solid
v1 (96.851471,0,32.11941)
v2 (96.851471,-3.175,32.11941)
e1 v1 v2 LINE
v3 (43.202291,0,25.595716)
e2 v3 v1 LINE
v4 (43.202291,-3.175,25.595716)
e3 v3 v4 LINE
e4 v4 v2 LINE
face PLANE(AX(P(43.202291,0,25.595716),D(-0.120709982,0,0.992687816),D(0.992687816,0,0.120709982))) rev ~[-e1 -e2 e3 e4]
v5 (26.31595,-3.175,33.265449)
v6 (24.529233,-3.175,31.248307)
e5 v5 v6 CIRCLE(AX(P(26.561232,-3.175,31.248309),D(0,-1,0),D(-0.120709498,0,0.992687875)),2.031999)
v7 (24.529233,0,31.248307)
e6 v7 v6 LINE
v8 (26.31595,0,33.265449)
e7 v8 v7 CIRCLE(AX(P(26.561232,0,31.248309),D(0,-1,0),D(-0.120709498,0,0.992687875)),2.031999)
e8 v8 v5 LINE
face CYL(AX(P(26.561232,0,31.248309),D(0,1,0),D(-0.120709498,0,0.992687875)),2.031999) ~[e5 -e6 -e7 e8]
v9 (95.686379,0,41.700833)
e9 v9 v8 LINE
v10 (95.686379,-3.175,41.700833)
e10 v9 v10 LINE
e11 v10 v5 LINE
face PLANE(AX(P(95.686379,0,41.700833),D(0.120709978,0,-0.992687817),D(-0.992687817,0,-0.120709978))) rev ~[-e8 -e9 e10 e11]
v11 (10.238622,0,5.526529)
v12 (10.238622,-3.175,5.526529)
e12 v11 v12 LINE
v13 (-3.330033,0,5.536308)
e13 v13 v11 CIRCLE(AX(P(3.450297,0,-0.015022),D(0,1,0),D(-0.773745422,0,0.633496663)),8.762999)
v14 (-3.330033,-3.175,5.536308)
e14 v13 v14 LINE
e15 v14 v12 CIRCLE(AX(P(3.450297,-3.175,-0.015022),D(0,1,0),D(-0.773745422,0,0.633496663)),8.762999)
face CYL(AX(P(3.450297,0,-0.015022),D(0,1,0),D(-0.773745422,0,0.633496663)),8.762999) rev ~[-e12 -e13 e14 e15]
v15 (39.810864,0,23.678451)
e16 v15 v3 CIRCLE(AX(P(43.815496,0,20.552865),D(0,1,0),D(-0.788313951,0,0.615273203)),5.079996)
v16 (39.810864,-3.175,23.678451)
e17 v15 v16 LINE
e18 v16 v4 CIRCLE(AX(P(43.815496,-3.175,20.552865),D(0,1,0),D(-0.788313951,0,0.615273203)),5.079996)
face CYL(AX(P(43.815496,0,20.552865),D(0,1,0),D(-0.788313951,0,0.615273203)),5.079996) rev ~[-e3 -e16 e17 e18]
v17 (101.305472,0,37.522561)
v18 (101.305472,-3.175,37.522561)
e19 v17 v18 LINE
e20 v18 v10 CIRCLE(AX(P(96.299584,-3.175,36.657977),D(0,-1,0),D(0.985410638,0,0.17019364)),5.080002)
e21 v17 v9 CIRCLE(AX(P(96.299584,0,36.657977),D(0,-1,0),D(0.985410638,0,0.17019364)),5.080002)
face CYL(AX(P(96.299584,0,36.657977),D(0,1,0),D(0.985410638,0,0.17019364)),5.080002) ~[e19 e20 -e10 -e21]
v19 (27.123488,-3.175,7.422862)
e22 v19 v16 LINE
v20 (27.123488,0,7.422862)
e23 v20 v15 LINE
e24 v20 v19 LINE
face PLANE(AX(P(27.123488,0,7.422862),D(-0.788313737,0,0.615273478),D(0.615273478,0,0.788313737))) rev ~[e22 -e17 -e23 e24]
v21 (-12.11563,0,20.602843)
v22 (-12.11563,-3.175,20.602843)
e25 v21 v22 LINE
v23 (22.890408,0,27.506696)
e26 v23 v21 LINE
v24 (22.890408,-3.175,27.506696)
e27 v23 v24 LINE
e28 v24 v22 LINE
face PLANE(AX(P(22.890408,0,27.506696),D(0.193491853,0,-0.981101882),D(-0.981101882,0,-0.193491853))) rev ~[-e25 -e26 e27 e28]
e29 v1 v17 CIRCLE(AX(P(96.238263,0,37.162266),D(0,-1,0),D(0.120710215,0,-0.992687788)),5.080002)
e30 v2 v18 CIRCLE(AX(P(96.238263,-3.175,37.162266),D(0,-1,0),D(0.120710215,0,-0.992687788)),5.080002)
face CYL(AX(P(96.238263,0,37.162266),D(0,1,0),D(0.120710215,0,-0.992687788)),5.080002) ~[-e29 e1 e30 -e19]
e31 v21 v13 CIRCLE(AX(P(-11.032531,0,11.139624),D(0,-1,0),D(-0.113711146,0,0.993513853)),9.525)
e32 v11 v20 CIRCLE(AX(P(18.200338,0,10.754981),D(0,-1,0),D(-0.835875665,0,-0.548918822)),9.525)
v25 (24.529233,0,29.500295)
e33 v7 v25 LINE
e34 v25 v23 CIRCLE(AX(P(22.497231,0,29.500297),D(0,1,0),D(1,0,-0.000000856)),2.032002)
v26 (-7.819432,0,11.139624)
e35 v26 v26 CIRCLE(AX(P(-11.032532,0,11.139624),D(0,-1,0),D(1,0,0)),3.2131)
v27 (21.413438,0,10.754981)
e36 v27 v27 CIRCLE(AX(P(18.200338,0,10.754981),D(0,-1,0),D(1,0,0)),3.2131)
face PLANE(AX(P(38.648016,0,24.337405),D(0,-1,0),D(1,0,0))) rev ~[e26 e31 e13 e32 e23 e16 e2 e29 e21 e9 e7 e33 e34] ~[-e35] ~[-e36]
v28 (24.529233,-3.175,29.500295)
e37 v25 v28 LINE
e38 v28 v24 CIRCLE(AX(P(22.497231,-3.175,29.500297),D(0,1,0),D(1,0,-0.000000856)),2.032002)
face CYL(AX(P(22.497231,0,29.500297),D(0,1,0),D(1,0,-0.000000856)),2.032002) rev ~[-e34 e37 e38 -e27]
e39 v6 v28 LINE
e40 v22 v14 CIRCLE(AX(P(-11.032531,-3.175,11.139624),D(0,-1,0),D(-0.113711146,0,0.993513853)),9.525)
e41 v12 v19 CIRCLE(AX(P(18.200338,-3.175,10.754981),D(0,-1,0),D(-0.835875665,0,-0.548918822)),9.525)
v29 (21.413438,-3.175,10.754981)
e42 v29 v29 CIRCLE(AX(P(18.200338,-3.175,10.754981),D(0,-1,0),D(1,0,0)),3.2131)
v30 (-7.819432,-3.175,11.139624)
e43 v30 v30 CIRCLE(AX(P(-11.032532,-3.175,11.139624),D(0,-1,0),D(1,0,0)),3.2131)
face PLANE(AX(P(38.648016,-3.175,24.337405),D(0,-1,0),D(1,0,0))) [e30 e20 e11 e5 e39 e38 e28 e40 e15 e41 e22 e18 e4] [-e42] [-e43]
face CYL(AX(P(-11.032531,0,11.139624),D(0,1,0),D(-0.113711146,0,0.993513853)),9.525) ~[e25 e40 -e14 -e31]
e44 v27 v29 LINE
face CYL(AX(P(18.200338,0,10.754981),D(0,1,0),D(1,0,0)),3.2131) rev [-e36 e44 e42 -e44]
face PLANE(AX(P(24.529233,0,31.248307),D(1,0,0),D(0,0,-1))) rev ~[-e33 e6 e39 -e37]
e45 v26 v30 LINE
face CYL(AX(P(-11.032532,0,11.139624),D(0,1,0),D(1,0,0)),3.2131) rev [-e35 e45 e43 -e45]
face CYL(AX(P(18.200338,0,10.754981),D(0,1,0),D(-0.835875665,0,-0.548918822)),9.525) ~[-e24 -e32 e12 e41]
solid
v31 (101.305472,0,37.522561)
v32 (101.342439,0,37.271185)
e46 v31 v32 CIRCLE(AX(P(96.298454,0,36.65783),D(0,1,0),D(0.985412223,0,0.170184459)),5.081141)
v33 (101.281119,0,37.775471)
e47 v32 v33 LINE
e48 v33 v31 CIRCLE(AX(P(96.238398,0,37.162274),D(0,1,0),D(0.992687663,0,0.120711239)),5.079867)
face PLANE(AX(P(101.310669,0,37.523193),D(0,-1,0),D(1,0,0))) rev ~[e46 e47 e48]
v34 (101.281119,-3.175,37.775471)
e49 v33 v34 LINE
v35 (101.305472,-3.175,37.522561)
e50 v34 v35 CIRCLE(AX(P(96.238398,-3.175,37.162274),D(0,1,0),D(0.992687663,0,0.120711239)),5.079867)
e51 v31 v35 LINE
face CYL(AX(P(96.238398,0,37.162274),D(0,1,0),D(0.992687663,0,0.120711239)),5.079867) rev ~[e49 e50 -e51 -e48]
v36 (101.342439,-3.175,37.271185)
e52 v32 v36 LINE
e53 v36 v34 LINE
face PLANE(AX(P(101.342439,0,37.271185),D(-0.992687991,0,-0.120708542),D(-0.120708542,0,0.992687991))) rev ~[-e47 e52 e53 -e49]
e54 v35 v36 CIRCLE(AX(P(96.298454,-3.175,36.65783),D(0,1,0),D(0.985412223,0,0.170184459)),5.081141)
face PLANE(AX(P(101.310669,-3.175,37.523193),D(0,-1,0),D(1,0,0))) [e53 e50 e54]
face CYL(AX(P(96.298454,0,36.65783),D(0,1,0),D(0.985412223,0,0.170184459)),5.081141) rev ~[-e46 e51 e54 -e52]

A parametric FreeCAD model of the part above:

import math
import FreeCAD as App
import Part
import Sketcher
from FreeCAD import Vector
Q = App.Units.Quantity

doc = App.newDocument("Part")
body = doc.addObject("PartDesign::Body", "Body")
body.AllowCompound = True

# Sketch on XZ plane
sketch1 = body.newObject("Sketcher::SketchObject", "Sketch")
sketch1.AttachmentSupport = (doc.getObject("XZ_Plane"), [""])
sketch1.MapMode = "FlatFace"
sketch1.addGeometry(Part.LineSegment(Vector(22.890408, 27.506696, 0), Vector(-12.11563, 20.602843, 0)), False)
sketch1.addGeometry(Part.ArcOfCircle(Part.Circle(Vector(-11.032531, 11.139624, 0), Vector(0, 0, 1), 9.525), math.radians(96.529291), math.radians(323.965336)), False)
sketch1.addGeometry(Part.ArcOfCircle(Part.Circle(Vector(3.450297, -0.015022, 0), Vector(0, 0, 1), 8.762999), math.radians(39.225987), math.radians(140.691426)), False)
sketch1.addGeometry(Part.ArcOfCircle(Part.Circle(Vector(18.200338, 10.754981, 0), Vector(0, 0, 1), 9.525), math.radians(-146.707129), math.radians(-20.476841)), False)
sketch1.addGeometry(Part.LineSegment(Vector(27.123488, 7.422862, 0), Vector(39.810864, 23.678451, 0)), False)
sketch1.addGeometry(Part.ArcOfCircle(Part.Circle(Vector(43.815496, 20.552865, 0), Vector(0, 0, 1), 5.079996), math.radians(96.933065), math.radians(142.028226)), False)
sketch1.addGeometry(Part.LineSegment(Vector(43.202291, 25.595716, 0), Vector(96.851471, 32.11941, 0)), False)
sketch1.addGeometry(Part.ArcOfCircle(Part.Circle(Vector(96.238263, 37.162266, 0), Vector(0, 0, 1), 5.080002), math.radians(-83.066907), math.radians(4.067071)), False)
sketch1.addGeometry(Part.ArcOfCircle(Part.Circle(Vector(96.299584, 36.657977, 0), Vector(0, 0, 1), 5.080002), math.radians(9.799078), math.radians(96.933061)), False)
sketch1.addGeometry(Part.LineSegment(Vector(95.686379, 41.700833, 0), Vector(26.31595, 33.265449, 0)), False)
sketch1.addGeometry(Part.ArcOfCircle(Part.Circle(Vector(26.561232, 31.248309, 0), Vector(0, 0, 1), 2.031999), math.radians(96.933051), math.radians(180.000048)), False)
sketch1.addGeometry(Part.LineSegment(Vector(24.529233, 31.248307, 0), Vector(24.529233, 29.500295, 0)), False)
sketch1.addGeometry(Part.ArcOfCircle(Part.Circle(Vector(22.497231, 29.500297, 0), Vector(0, 0, 1), 2.032002), math.radians(-78.843332), math.radians(-0.000049)), False)
sketch1.addGeometry(Part.Circle(Vector(18.200338, 10.754981, 0), Vector(0, 0, 1), 3.2131), False)
sketch1.addGeometry(Part.Circle(Vector(-11.032532, 11.139624, 0), Vector(0, 0, 1), 3.2131), False)
sketch1.addGeometry(Part.ArcOfCircle(Part.Circle(Vector(96.238398, 37.162274, 0), Vector(0, 0, 1), 5.079867), math.radians(4.067089), math.radians(6.933152)), False)
sketch1.addGeometry(Part.ArcOfCircle(Part.Circle(Vector(96.298454, 36.65783, 0), Vector(0, 0, 1), 5.081141), math.radians(6.933202), math.radians(9.798544)), False)
sketch1.addGeometry(Part.LineSegment(Vector(101.342439, 37.271185, 0), Vector(101.281119, 37.775471, 0)), False)
sketch1.addConstraint(Sketcher.Constraint("Coincident", 0, 2, 1, 1))
sketch1.addConstraint(Sketcher.Constraint("Coincident", 1, 2, 2, 2))
sketch1.addConstraint(Sketcher.Constraint("Coincident", 2, 1, 3, 1))
sketch1.addConstraint(Sketcher.Constraint("Coincident", 3, 2, 4, 1))
sketch1.addConstraint(Sketcher.Constraint("Coincident", 4, 2, 5, 2))
sketch1.addConstraint(Sketcher.Constraint("Coincident", 5, 1, 6, 1))
sketch1.addConstraint(Sketcher.Constraint("Coincident", 6, 2, 7, 1))
sketch1.addConstraint(Sketcher.Constraint("Coincident", 7, 2, 8, 1))
sketch1.addConstraint(Sketcher.Constraint("Coincident", 8, 2, 9, 1))
sketch1.addConstraint(Sketcher.Constraint("Coincident", 9, 2, 10, 1))
sketch1.addConstraint(Sketcher.Constraint("Coincident", 10, 2, 11, 1))
sketch1.addConstraint(Sketcher.Constraint("Coincident", 11, 2, 12, 2))
sketch1.addConstraint(Sketcher.Constraint("Coincident", 12, 1, 0, 1))
sketch1.addConstraint(Sketcher.Constraint("Coincident", 15, 1, 16, 2))
sketch1.addConstraint(Sketcher.Constraint("Coincident", 16, 1, 17, 1))
sketch1.addConstraint(Sketcher.Constraint("Coincident", 17, 2, 15, 2))
sketch1.addConstraint(Sketcher.Constraint("Vertical", 11))
sketch1.addConstraint(Sketcher.Constraint("Coincident", 13, 3, 3, 3))
sketch1.addConstraint(Sketcher.Constraint("Coincident", 14, 3, 1, 3))
sketch1.addConstraint(Sketcher.Constraint("Coincident", 15, 1, 7, 2))
sketch1.addConstraint(Sketcher.Constraint("Radius", 5, Q("0.1999999 in")))
sketch1.addConstraint(Sketcher.Constraint("Radius", 7, Q("0.2000001 in")))
sketch1.addConstraint(Sketcher.Constraint("Radius", 8, Q("0.2000001 in")))
sketch1.addConstraint(Sketcher.Constraint("Radius", 10, Q("0.0799999 in")))
sketch1.addConstraint(Sketcher.Constraint("Radius", 12, Q("0.0800001 in")))
sketch1.addConstraint(Sketcher.Constraint("Diameter", 13, Q("0.253 in")))
sketch1.addConstraint(Sketcher.Constraint("Diameter", 14, Q("0.253 in")))
sketch1.addConstraint(Sketcher.Constraint("Radius", 1, Q("0.375 in")))
sketch1.addConstraint(Sketcher.Constraint("Radius", 2, Q("0.345 in")))
sketch1.addConstraint(Sketcher.Constraint("Radius", 3, Q("0.375 in")))
sketch1.addConstraint(Sketcher.Constraint("Distance", 17, Q("0.02 in")))
sketch1.addConstraint(Sketcher.Constraint("Radius", 16, Q("5.081141 mm")))
sketch1.addConstraint(Sketcher.Constraint("Radius", 15, Q("5.079867 mm")))
sketch1.addConstraint(Sketcher.Constraint("DistanceY", 1, 3, 5, 3, Q("0.3706001 in")))
sketch1.addConstraint(Sketcher.Constraint("DistanceY", 11, 2, 11, 1, Q("1.748012 mm")))
sketch1.addConstraint(Sketcher.Constraint("DistanceX", -1, 1, 15, 3, Q("96.238398 mm")))
sketch1.addConstraint(Sketcher.Constraint("DistanceX", 2, 3, 5, 3, Q("40.365199 mm")))
sketch1.addConstraint(Sketcher.Constraint("DistanceY", 5, 3, 7, 3, Q("16.609401 mm")))
sketch1.addConstraint(Sketcher.Constraint("DistanceY", 2, 3, 8, 3, Q("36.672999 mm")))
sketch1.addConstraint(Sketcher.Constraint("DistanceX", 0, 2, 1, 3, Q("1.083099 mm")))
sketch1.addConstraint(Sketcher.Constraint("DistanceX", 1, 3, 1, 2, Q("7.702498 mm")))
sketch1.addConstraint(Sketcher.Constraint("DistanceX", 6, 2, 7, 2, Q("4.454001 mm")))
sketch1.addConstraint(Sketcher.Constraint("DistanceY", 12, 1, 12, 3, Q("1.993601 mm")))
sketch1.addConstraint(Sketcher.Constraint("DistanceY", 12, 1, 11, 2, Q("1.993599 mm")))
sketch1.addConstraint(Sketcher.Constraint("Distance", 0, Q("35.680329 mm")))
sketch1.addConstraint(Sketcher.Constraint("Distance", 4, Q("20.62071 mm")))
sketch1.addConstraint(Sketcher.Constraint("DistanceX", 1, 3, -1, 1, Q("11.032531 mm")))
sketch1.addConstraint(Sketcher.Constraint("DistanceY", -1, 1, 3, 3, Q("10.754981 mm")))
sketch1.addConstraint(Sketcher.Constraint("DistanceX", -1, 1, 10, 3, Q("26.561232 mm")))
sketch1.addConstraint(Sketcher.Constraint("DistanceY", -1, 1, 10, 3, Q("31.248309 mm")))
sketch1.addConstraint(Sketcher.Constraint("DistanceY", -1, 1, 16, 3, Q("36.65783 mm")))
sketch1.addConstraint(Sketcher.Constraint("DistanceX", -1, 1, 2, 1, Q("10.238622 mm")))
sketch1.addConstraint(Sketcher.Constraint("DistanceY", -1, 1, 2, 1, Q("5.526529 mm")))
sketch1.addConstraint(Sketcher.Constraint("DistanceY", -1, 1, 4, 2, Q("23.678451 mm")))
sketch1.addConstraint(Sketcher.Constraint("DistanceX", -1, 1, 5, 1, Q("43.202291 mm")))
sketch1.addConstraint(Sketcher.Constraint("DistanceX", -1, 1, 6, 2, Q("96.851471 mm")))
sketch1.addConstraint(Sketcher.Constraint("DistanceY", -1, 1, 6, 2, Q("32.11941 mm")))
sketch1.addConstraint(Sketcher.Constraint("DistanceY", -1, 1, 7, 2, Q("37.522561 mm")))
sketch1.addConstraint(Sketcher.Constraint("DistanceX", -1, 1, 8, 2, Q("95.686379 mm")))
sketch1.addConstraint(Sketcher.Constraint("DistanceX", -1, 1, 9, 2, Q("26.31595 mm")))
sketch1.addConstraint(Sketcher.Constraint("DistanceX", -1, 1, 16, 1, Q("101.342439 mm")))
pad1 = body.newObject("PartDesign::Pad", "Pad")
pad1.Profile = sketch1
pad1.Length = Q("0.125 in")

doc.recompute()
